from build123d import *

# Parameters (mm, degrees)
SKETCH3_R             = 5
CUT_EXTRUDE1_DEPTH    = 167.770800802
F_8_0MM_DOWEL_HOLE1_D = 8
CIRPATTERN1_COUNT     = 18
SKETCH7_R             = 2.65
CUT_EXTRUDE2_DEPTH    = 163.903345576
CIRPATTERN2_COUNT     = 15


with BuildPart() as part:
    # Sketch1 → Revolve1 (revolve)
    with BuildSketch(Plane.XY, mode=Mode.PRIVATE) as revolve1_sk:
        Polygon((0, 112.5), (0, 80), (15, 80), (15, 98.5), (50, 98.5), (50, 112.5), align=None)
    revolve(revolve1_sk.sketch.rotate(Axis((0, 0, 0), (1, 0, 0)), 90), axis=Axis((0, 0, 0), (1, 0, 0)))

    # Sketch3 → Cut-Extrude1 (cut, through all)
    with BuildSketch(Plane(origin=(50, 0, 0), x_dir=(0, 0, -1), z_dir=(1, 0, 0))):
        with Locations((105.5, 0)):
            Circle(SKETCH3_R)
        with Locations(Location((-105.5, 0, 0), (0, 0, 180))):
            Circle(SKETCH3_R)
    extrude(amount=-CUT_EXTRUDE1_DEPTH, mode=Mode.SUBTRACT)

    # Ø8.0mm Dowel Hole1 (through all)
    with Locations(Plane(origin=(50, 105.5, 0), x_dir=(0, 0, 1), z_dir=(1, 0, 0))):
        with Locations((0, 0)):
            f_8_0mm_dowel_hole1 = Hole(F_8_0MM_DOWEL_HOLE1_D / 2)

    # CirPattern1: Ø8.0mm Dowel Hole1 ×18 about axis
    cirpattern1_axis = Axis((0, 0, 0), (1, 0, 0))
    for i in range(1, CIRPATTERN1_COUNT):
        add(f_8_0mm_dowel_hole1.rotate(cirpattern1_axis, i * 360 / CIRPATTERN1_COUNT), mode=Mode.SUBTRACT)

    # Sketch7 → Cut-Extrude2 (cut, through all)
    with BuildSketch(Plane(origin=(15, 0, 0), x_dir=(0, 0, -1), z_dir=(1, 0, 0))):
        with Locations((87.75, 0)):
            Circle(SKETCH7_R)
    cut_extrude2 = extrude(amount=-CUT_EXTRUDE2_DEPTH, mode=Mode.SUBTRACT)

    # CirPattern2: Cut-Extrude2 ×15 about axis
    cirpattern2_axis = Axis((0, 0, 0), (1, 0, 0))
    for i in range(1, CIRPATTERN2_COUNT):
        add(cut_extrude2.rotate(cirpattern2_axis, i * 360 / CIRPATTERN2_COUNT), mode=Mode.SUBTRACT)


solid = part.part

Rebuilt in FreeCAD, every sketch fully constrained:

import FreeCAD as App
import Part
import Sketcher
Q = App.Units.Quantity


def add_polygon(sketch, points):
    """Adds a closed chain of lines whose ends are joined by coincident constraints."""
    first, n = sketch.GeometryCount, len(points)
    for a, b in zip(points, points[1:] + points[:1]):
        sketch.addGeometry(Part.LineSegment(App.Vector(*a, 0), App.Vector(*b, 0)), False)
    for i in range(n):
        sketch.addConstraint(Sketcher.Constraint("Coincident", first + i, 2, first + (i + 1) % n, 1))

doc = App.newDocument("Part")
body = doc.addObject("PartDesign::Body", "Body")

# Sketch on XY plane
sketch1 = body.newObject("Sketcher::SketchObject", "Sketch")
sketch1.AttachmentSupport = (doc.getObject("XY_Plane"), [""])
sketch1.MapMode = "FlatFace"
add_polygon(sketch1, [(0, 112), (0, 80), (15, 80), (15, 98), (50, 98), (50, 112)])  # lines 0-5
sketch1.addConstraint(Sketcher.Constraint("Vertical", 0))
sketch1.addConstraint(Sketcher.Constraint("Horizontal", 1))
sketch1.addConstraint(Sketcher.Constraint("Vertical", 2))
sketch1.addConstraint(Sketcher.Constraint("Horizontal", 3))
sketch1.addConstraint(Sketcher.Constraint("Vertical", 4))
sketch1.addConstraint(Sketcher.Constraint("Horizontal", 5))
sketch1.addConstraint(Sketcher.Constraint("PointOnObject", 0, 2, -2))
sketch1.addConstraint(Sketcher.Constraint("DistanceX", 1, 1, 1, 2, Q("15 mm")))
sketch1.addConstraint(Sketcher.Constraint("DistanceX", 3, 1, 3, 2, Q("35 mm")))
sketch1.addConstraint(Sketcher.Constraint("DistanceY", 4, 1, 4, 2, Q("14 mm")))
sketch1.addConstraint(Sketcher.Constraint("DistanceY", 0, 2, 0, 1, Q("32.5 mm")))
sketch1.addConstraint(Sketcher.Constraint("DistanceY", -1, 1, 0, 2, Q("80 mm")))
revolution = body.newObject("PartDesign::Revolution", "Revolution")
revolution.Profile = sketch1
revolution.ReferenceAxis = (sketch1, ["H_Axis"])
revolution.Angle = 360

# Sketch on YZ plane
sketch2 = body.newObject("Sketcher::SketchObject", "Sketch001")
sketch2.AttachmentSupport = (doc.getObject("YZ_Plane"), [""])
sketch2.MapMode = "FlatFace"
sketch2.AttachmentOffset = App.Placement(App.Vector(0, 0, 50), App.Rotation())
sketch2.addGeometry(Part.Circle(App.Vector(0, -106, 0), App.Vector(0, 0, 1), 5), False)
sketch2.addGeometry(Part.Circle(App.Vector(0, 106, 0), App.Vector(0, 0, 1), 5), False)
sketch2.addConstraint(Sketcher.Constraint("Equal", 0, 1))
sketch2.addConstraint(Sketcher.Constraint("Symmetric", 0, 3, 1, 3, -1, 1))
sketch2.addConstraint(Sketcher.Constraint("PointOnObject", 0, 3, -2))
sketch2.addConstraint(Sketcher.Constraint("Diameter", 0, Q("10 mm")))
sketch2.addConstraint(Sketcher.Constraint("DistanceY", 0, 3, 1, 3, Q("211 mm")))
pocket1 = body.newObject("PartDesign::Pocket", "Pocket")
pocket1.Profile = sketch2
pocket1.Type = "ThroughAll"

# Sketch on YZ plane
sketch3 = body.newObject("Sketcher::SketchObject", "Sketch002")
sketch3.AttachmentSupport = (doc.getObject("YZ_Plane"), [""])
sketch3.MapMode = "FlatFace"
sketch3.AttachmentOffset = App.Placement(App.Vector(0, 0, 50), App.Rotation())
sketch3.addGeometry(Part.Circle(App.Vector(105.5, 0, 0), App.Vector(0, 0, 1), 4), False)
sketch3.addConstraint(Sketcher.Constraint("PointOnObject", 0, 3, -1))
sketch3.addConstraint(Sketcher.Constraint("Diameter", 0, Q("8 mm")))
sketch3.addConstraint(Sketcher.Constraint("DistanceX", -1, 1, 0, 3, Q("105.5 mm")))
doc.recompute()
hole = body.newObject("PartDesign::Hole", "Hole")
hole.Profile = sketch3
hole.ThreadType = "None"
hole.Diameter = 8
hole.DepthType = "ThroughAll"
doc.recompute()

polarpattern = body.newObject("PartDesign::PolarPattern", "PolarPattern")
polarpattern.Originals = [hole]
polarpattern.Axis = (doc.getObject("X_Axis"), [""])
polarpattern.Angle = 360
polarpattern.Occurrences = 18
body.Tip = polarpattern

# Sketch on YZ plane
sketch4 = body.newObject("Sketcher::SketchObject", "Sketch003")
sketch4.AttachmentSupport = (doc.getObject("YZ_Plane"), [""])
sketch4.MapMode = "FlatFace"
sketch4.AttachmentOffset = App.Placement(App.Vector(0, 0, 15), App.Rotation())
sketch4.addGeometry(Part.Circle(App.Vector(0, -87.8, 0), App.Vector(0, 0, 1), 2.6), False)
sketch4.addConstraint(Sketcher.Constraint("PointOnObject", 0, 3, -2))
sketch4.addConstraint(Sketcher.Constraint("Diameter", 0, Q("5.3 mm")))
sketch4.addConstraint(Sketcher.Constraint("DistanceY", 0, 3, -1, 1, Q("87.75 mm")))
pocket2 = body.newObject("PartDesign::Pocket", "Pocket001")
pocket2.Profile = sketch4
pocket2.Type = "ThroughAll"
doc.recompute()

polarpattern2 = body.newObject("PartDesign::PolarPattern", "PolarPattern001")
polarpattern2.Originals = [pocket2]
polarpattern2.Axis = (doc.getObject("X_Axis"), [""])
polarpattern2.Angle = 360
polarpattern2.Occurrences = 15
body.Tip = polarpattern2

doc.recompute()
